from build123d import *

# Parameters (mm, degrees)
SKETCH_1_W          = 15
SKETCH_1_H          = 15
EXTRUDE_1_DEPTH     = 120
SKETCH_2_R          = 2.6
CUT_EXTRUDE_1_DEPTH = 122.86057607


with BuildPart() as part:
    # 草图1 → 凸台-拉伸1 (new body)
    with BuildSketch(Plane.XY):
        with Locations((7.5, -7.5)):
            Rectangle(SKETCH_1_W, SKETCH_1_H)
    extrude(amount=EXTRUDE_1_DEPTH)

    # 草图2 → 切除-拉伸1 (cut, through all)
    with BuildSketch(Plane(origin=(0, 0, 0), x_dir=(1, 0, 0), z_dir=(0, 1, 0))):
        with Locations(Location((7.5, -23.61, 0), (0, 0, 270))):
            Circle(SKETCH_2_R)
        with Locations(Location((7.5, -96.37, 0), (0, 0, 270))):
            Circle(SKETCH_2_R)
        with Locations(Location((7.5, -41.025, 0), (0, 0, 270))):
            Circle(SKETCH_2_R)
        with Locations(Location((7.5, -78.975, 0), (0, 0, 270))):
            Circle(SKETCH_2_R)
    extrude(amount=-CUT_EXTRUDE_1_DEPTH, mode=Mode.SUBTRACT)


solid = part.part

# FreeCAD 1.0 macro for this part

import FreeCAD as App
import Part
import Sketcher


def add_polygon(sketch, points):
    """Adds a closed chain of lines whose ends are joined by coincident constraints."""
    first, n = sketch.GeometryCount, len(points)
    for a, b in zip(points, points[1:] + points[:1]):
        sketch.addGeometry(Part.LineSegment(App.Vector(*a, 0), App.Vector(*b, 0)), False)
    for i in range(n):
        sketch.addConstraint(Sketcher.Constraint("Coincident", first + i, 2, first + (i + 1) % n, 1))

doc = App.newDocument("Part")
body = doc.addObject("PartDesign::Body", "Body")

# Sketch on XY plane
sketch1 = body.newObject("Sketcher::SketchObject", "Sketch")
sketch1.AttachmentSupport = (doc.getObject("XY_Plane"), [""])
sketch1.MapMode = "FlatFace"
add_polygon(sketch1, [(0, 0), (0, -15), (15, -15), (15, 0)])  # lines 0-3
sketch1.addConstraint(Sketcher.Constraint("Vertical", 0))
sketch1.addConstraint(Sketcher.Constraint("Horizontal", 1))
sketch1.addConstraint(Sketcher.Constraint("Vertical", 2))
sketch1.addConstraint(Sketcher.Constraint("Horizontal", 3))
sketch1.addConstraint(Sketcher.Constraint("Coincident", 3, 2, -1, 1))
sketch1.addConstraint(Sketcher.Constraint("Equal", 3, 0))
sketch1.addConstraint(Sketcher.Constraint("DistanceX", 1, 1, 1, 2, 15.0))
pad1 = body.newObject("PartDesign::Pad", "Pad")
pad1.Profile = sketch1
pad1.Length = 120

# Sketch on XZ plane
sketch2 = body.newObject("Sketcher::SketchObject", "Sketch001")
sketch2.AttachmentSupport = (doc.getObject("XZ_Plane"), [""])
sketch2.MapMode = "FlatFace"
sketch2.addGeometry(Part.Circle(App.Vector(7.5, 23.6, 0), App.Vector(0, 0, 1), 2.6), False)
sketch2.addGeometry(Part.Circle(App.Vector(7.5, 96.4, 0), App.Vector(0, 0, 1), 2.6), False)
sketch2.addGeometry(Part.Circle(App.Vector(7.5, 41, 0), App.Vector(0, 0, 1), 2.6), False)
sketch2.addGeometry(Part.Circle(App.Vector(7.5, 79, 0), App.Vector(0, 0, 1), 2.6), False)
sketch2.addConstraint(Sketcher.Constraint("Equal", 0, 1))
sketch2.addConstraint(Sketcher.Constraint("Equal", 1, 2))
sketch2.addConstraint(Sketcher.Constraint("Equal", 2, 3))
sketch2.addConstraint(Sketcher.Constraint("Vertical", 0, 3, 1, 3))
sketch2.addConstraint(Sketcher.Constraint("Vertical", 1, 3, 2, 3))
sketch2.addConstraint(Sketcher.Constraint("Vertical", 2, 3, 3, 3))
sketch2.addConstraint(Sketcher.Constraint("Diameter", 0, 5.2))
sketch2.addConstraint(Sketcher.Constraint("DistanceX", -1, 1, 0, 3, 7.5))
sketch2.addConstraint(Sketcher.Constraint("DistanceY", -1, 1, 0, 3, 23.61))
sketch2.addConstraint(Sketcher.Constraint("DistanceY", -1, 1, 1, 3, 96.37))
sketch2.addConstraint(Sketcher.Constraint("DistanceY", 2, 3, 3, 3, 37.95))
sketch2.addConstraint(Sketcher.Constraint("DistanceY", -1, 1, 2, 3, 41.025))
pocket1 = body.newObject("PartDesign::Pocket", "Pocket")
pocket1.Profile = sketch2
pocket1.Type = "ThroughAll"
pocket1.Reversed = True

doc.recompute()
